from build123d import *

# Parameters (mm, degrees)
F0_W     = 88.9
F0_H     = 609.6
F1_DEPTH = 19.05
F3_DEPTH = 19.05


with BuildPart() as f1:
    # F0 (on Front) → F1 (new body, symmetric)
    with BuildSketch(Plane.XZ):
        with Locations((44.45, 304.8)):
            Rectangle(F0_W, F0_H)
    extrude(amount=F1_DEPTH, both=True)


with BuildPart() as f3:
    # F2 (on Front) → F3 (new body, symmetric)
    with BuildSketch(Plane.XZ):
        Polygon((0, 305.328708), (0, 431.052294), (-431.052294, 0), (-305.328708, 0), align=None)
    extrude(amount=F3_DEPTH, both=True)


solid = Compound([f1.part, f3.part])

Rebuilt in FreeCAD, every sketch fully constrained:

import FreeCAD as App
import Part
import Sketcher
from FreeCAD import Vector
Q = App.Units.Quantity

doc = App.newDocument("Part")
body = doc.addObject("PartDesign::Body", "Body")

sketch1 = doc.addObject("Sketcher::SketchObject", "Sketch")
body.addObject(sketch1)
sketch1.AttachmentSupport = (doc.XZ_Plane, [""])
sketch1.MapMode = "FlatFace"
sketch1.addGeometry([
    Part.LineSegment(Vector(0, 610, 0), Vector(0, 0, 0)),
    Part.LineSegment(Vector(0, 0, 0), Vector(89, 0, 0)),
    Part.LineSegment(Vector(89, 0, 0), Vector(89, 610, 0)),
    Part.LineSegment(Vector(89, 610, 0), Vector(0, 610, 0)),
], False)
sketch1.addConstraint([
    Sketcher.Constraint("Coincident", 0, 2, 1, 1),
    Sketcher.Constraint("Coincident", 1, 2, 2, 1),
    Sketcher.Constraint("Coincident", 2, 2, 3, 1),
    Sketcher.Constraint("Coincident", 3, 2, 0, 1),
    Sketcher.Constraint("Vertical", 0),
    Sketcher.Constraint("Horizontal", 1),
    Sketcher.Constraint("Vertical", 2),
    Sketcher.Constraint("Horizontal", 3),
    Sketcher.Constraint("Coincident", 0, 2, -1, 1),
    Sketcher.Constraint("DistanceY", 0, 2, 0, 1, Q("24 in")),
    Sketcher.Constraint("DistanceX", 1, 1, 1, 2, Q("3.5 in")),
])
pad1 = doc.addObject("PartDesign::Pad", "Pad")
body.addObject(pad1)
pad1.Profile = sketch1
pad1.Length = Q("1.5 in")
pad1.Midplane = True
body2 = doc.addObject("PartDesign::Body", "Body001")

sketch2 = doc.addObject("Sketcher::SketchObject", "Sketch001")
body2.addObject(sketch2)
sketch2.AttachmentSupport = (doc.getObject("XZ_Plane001"), [""])
sketch2.MapMode = "FlatFace"
sketch2.addGeometry([
    Part.LineSegment(Vector(0, 305, 0), Vector(0, 431, 0)),
    Part.LineSegment(Vector(0, 431, 0), Vector(-431, 0, 0)),
    Part.LineSegment(Vector(-431, 0, 0), Vector(-305, 0, 0)),
    Part.LineSegment(Vector(-305, 0, 0), Vector(0, 305, 0)),
], False)
sketch2.addConstraint([
    Sketcher.Constraint("Coincident", 0, 2, 1, 1),
    Sketcher.Constraint("Coincident", 1, 2, 2, 1),
    Sketcher.Constraint("Coincident", 2, 2, 3, 1),
    Sketcher.Constraint("Coincident", 3, 2, 0, 1),
    Sketcher.Constraint("Vertical", 0),
    Sketcher.Constraint("Horizontal", 2),
    Sketcher.Constraint("PointOnObject", 0, 2, -2),
    Sketcher.Constraint("PointOnObject", 1, 2, -1),
    Sketcher.Constraint("Parallel", 1, 3),
    Sketcher.Constraint("Equal", 2, 0),
    Sketcher.Constraint("Distance", 1, Q("24 in")),
    Sketcher.Constraint("Distance", 3, Q("17 in")),
])
pad2 = doc.addObject("PartDesign::Pad", "Pad001")
body2.addObject(pad2)
pad2.Profile = sketch2
pad2.Length = Q("1.5 in")
pad2.Midplane = True

doc.recompute()
